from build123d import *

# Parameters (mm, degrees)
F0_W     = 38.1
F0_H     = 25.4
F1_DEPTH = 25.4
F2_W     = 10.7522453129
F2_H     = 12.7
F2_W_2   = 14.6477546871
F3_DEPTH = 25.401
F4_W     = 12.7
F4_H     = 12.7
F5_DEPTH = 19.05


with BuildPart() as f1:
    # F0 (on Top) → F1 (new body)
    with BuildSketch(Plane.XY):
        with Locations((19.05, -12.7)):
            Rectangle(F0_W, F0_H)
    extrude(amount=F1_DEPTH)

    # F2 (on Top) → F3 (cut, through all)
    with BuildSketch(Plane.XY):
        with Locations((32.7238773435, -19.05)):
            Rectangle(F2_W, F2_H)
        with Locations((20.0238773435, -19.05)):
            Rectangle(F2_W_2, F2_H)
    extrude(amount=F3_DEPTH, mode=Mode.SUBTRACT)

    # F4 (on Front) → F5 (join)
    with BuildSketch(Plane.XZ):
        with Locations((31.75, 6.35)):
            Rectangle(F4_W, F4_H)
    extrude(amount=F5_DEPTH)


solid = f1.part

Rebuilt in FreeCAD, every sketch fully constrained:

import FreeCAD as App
import Part
import Sketcher
Q = App.Units.Quantity

doc = App.newDocument("Part")
body = doc.addObject("PartDesign::Body", "Body")

# Sketch on XY plane
sketch1 = body.newObject("Sketcher::SketchObject", "Sketch")
sketch1.AttachmentSupport = (doc.getObject("XY_Plane"), [""])
sketch1.MapMode = "FlatFace"
sketch1.addGeometry([
    Part.LineSegment(App.Vector(0, 0, 0), App.Vector(0, -25, 0)),
    Part.LineSegment(App.Vector(0, -25, 0), App.Vector(38, -25, 0)),
    Part.LineSegment(App.Vector(38, -25, 0), App.Vector(38, 0, 0)),
    Part.LineSegment(App.Vector(38, 0, 0), App.Vector(0, 0, 0)),
], False)
sketch1.addConstraint([
    Sketcher.Constraint("Coincident", 0, 2, 1, 1),
    Sketcher.Constraint("Coincident", 1, 2, 2, 1),
    Sketcher.Constraint("Coincident", 2, 2, 3, 1),
    Sketcher.Constraint("Coincident", 3, 2, 0, 1),
    Sketcher.Constraint("Vertical", 0),
    Sketcher.Constraint("Horizontal", 1),
    Sketcher.Constraint("Vertical", 2),
    Sketcher.Constraint("Horizontal", 3),
    Sketcher.Constraint("Coincident", 3, 2, -1, 1),
    Sketcher.Constraint("DistanceY", 0, 2, 0, 1, Q("1 in")),
    Sketcher.Constraint("DistanceX", 1, 1, 1, 2, Q("1.5 in")),
])
pad1 = body.newObject("PartDesign::Pad", "Pad")
pad1.Profile = sketch1
pad1.Length = Q("1 in")

# Sketch on XY plane
sketch2 = body.newObject("Sketcher::SketchObject", "Sketch001")
sketch2.AttachmentSupport = (doc.getObject("XY_Plane"), [""])
sketch2.MapMode = "FlatFace"
sketch2.addGeometry([
    Part.LineSegment(App.Vector(38, -25, 0), App.Vector(38, -13, 0)),
    Part.LineSegment(App.Vector(38, -13, 0), App.Vector(13, -13, 0)),
    Part.LineSegment(App.Vector(13, -13, 0), App.Vector(13, -25, 0)),
    Part.LineSegment(App.Vector(13, -25, 0), App.Vector(38, -25, 0)),
], False)
sketch2.addConstraint([
    Sketcher.Constraint("Coincident", 0, 2, 1, 1),
    Sketcher.Constraint("Coincident", 1, 2, 2, 1),
    Sketcher.Constraint("Coincident", 2, 2, 3, 1),
    Sketcher.Constraint("Coincident", 3, 2, 0, 1),
    Sketcher.Constraint("Vertical", 0),
    Sketcher.Constraint("Horizontal", 1),
    Sketcher.Constraint("Vertical", 2),
    Sketcher.Constraint("Horizontal", 3),
    Sketcher.Constraint("DistanceX", 1, 2, 1, 1, Q("1 in")),
    Sketcher.Constraint("DistanceY", 0, 1, 0, 2, Q("0.5 in")),
    Sketcher.Constraint("DistanceY", 2, 2, -1, 1, Q("1 in")),
    Sketcher.Constraint("DistanceX", -1, 1, 0, 2, Q("1.5 in")),
])
pocket1 = body.newObject("PartDesign::Pocket", "Pocket")
pocket1.Profile = sketch2
pocket1.Type = "ThroughAll"
pocket1.Reversed = True

# Sketch on XZ plane
sketch3 = body.newObject("Sketcher::SketchObject", "Sketch002")
sketch3.AttachmentSupport = (doc.getObject("XZ_Plane"), [""])
sketch3.MapMode = "FlatFace"
sketch3.addGeometry([
    Part.LineSegment(App.Vector(25, 13, 0), App.Vector(25, 0, 0)),
    Part.LineSegment(App.Vector(25, 0, 0), App.Vector(38, 0, 0)),
    Part.LineSegment(App.Vector(38, 0, 0), App.Vector(38, 13, 0)),
    Part.LineSegment(App.Vector(38, 13, 0), App.Vector(25, 13, 0)),
], False)
sketch3.addConstraint([
    Sketcher.Constraint("Coincident", 0, 2, 1, 1),
    Sketcher.Constraint("Coincident", 1, 2, 2, 1),
    Sketcher.Constraint("Coincident", 2, 2, 3, 1),
    Sketcher.Constraint("Coincident", 3, 2, 0, 1),
    Sketcher.Constraint("Vertical", 0),
    Sketcher.Constraint("Horizontal", 1),
    Sketcher.Constraint("Vertical", 2),
    Sketcher.Constraint("Horizontal", 3),
    Sketcher.Constraint("PointOnObject", 0, 2, -1),
    Sketcher.Constraint("Equal", 3, 0),
    Sketcher.Constraint("DistanceX", 1, 1, 1, 2, Q("0.5 in")),
    Sketcher.Constraint("DistanceX", -1, 1, 0, 2, Q("1 in")),
])
pad2 = body.newObject("PartDesign::Pad", "Pad001")
pad2.Profile = sketch3
pad2.Length = Q("0.75 in")

doc.recompute()
